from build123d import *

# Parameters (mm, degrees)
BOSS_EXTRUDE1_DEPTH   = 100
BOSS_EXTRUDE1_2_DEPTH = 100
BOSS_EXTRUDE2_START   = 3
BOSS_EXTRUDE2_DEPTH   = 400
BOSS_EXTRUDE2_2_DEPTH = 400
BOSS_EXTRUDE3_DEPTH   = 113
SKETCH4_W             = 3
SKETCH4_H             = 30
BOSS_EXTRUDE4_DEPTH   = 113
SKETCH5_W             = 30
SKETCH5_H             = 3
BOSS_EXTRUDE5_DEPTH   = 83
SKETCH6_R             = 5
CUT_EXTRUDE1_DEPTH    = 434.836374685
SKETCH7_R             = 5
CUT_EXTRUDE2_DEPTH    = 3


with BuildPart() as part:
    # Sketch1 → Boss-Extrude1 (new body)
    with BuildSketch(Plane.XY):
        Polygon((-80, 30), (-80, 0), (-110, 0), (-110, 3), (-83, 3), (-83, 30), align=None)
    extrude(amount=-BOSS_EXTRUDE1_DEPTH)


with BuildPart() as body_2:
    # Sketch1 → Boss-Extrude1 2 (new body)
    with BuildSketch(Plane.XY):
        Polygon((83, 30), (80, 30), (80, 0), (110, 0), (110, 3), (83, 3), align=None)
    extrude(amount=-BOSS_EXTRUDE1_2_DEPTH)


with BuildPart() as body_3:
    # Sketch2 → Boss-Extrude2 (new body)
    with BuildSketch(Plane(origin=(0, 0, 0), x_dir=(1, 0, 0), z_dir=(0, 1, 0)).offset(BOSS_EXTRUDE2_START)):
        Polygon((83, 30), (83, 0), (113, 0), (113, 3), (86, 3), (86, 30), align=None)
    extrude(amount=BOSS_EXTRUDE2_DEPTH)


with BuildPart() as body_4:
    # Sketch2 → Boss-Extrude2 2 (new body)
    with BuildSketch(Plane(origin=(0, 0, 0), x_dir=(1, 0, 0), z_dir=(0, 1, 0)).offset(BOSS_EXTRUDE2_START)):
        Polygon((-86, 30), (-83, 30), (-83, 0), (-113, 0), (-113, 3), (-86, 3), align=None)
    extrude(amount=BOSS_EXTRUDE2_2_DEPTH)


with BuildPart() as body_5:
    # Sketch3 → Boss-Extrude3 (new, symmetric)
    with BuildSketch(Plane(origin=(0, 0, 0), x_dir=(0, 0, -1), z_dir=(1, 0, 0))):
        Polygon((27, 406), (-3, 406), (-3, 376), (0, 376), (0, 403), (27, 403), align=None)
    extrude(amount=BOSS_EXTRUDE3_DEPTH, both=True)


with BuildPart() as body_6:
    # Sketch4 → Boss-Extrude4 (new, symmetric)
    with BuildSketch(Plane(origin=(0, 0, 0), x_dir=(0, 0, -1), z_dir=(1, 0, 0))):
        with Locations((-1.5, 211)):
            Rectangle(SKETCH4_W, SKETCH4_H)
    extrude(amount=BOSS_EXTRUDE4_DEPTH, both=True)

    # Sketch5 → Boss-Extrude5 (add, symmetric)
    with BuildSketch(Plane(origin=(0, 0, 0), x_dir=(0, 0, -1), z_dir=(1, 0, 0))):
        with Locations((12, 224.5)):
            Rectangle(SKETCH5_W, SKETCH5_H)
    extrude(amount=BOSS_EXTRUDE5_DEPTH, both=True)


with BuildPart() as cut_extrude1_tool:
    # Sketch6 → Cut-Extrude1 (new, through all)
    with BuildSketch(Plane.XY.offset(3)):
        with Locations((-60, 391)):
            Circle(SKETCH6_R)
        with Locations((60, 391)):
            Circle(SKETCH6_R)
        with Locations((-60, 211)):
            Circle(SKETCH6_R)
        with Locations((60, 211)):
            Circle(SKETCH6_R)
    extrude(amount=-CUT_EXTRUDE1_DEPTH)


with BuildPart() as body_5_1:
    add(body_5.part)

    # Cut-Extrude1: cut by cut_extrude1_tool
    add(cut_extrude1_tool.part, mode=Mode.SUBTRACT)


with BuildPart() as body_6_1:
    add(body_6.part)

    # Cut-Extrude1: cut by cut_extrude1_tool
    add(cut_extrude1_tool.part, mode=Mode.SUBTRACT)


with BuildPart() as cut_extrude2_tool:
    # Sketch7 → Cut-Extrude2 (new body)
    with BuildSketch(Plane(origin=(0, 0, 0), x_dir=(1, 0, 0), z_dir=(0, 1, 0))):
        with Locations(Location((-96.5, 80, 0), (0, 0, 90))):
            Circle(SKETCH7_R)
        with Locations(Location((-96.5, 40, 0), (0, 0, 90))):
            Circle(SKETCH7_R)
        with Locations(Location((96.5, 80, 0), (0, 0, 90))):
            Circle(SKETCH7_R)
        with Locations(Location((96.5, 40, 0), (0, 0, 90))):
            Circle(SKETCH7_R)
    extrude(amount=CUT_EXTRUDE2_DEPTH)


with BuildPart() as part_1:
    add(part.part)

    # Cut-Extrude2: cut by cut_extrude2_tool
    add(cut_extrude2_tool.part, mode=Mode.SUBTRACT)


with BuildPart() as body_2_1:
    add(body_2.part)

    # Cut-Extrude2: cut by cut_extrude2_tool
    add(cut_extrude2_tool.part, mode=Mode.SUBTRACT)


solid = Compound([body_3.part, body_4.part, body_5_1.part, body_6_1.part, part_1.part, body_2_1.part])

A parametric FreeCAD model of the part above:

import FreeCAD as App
import Part
import Sketcher

V = App.Vector
Q = App.Units.Quantity


def add_polygon(sketch, points):
    """Adds a closed chain of lines whose ends are joined by coincident constraints."""
    first, n = sketch.GeometryCount, len(points)
    for a, b in zip(points, points[1:] + points[:1]):
        sketch.addGeometry(Part.LineSegment(App.Vector(*a, 0), App.Vector(*b, 0)), False)
    for i in range(n):
        sketch.addConstraint(Sketcher.Constraint("Coincident", first + i, 2, first + (i + 1) % n, 1))

doc = App.newDocument("Part")
params = doc.addObject("Spreadsheet::Sheet", "Params")
for row, (alias, value) in enumerate([
    ("sketch1_width", "3 mm"),
    ("sketch1_width2", "27 mm"),
    ("pad1_length", "100 mm"),
    ("sketch2_width", "3 mm"),
    ("sketch2_width2", "30 mm"),
    ("pad2_length", "100 mm"),
    ("sketch3_width", "30 mm"),
    ("sketch3_width2", "27 mm"),
    ("pad3_length", "400 mm"),
    ("sketch4_width", "3 mm"),
    ("sketch4_width2", "27 mm"),
    ("pad4_length", "400 mm"),
    ("sketch5_width", "30 mm"),
    ("sketch5_width2", "27 mm"),
    ("pad5_length", "226 mm"),
    ("sketch6_width", "30 mm"),
    ("sketch6_height", "3 mm"),
    ("pad6_length", "226 mm"),
    ("sketch7_width", "3 mm"),
    ("sketch7_height", "30 mm"),
    ("pad7_length", "166 mm"),
    ("sketch8_diameter", "10 mm"),
    ("pad8_length", "434.836375 mm"),
    ("sketch9_diameter", "10 mm"),
    ("pad9_length", "3 mm"),
], start=1):
    params.set(f"A{row}", alias)
    params.set(f"B{row}", "=" + value)
    params.setAlias(f"B{row}", alias)

body = doc.addObject("PartDesign::Body", "Body")

# Sketch on XY plane
sketch1 = doc.addObject("Sketcher::SketchObject", "Sketch")
body.addObject(sketch1)
sketch1.AttachmentSupport = (doc.XY_Plane, [""])
sketch1.MapMode = "FlatFace"
add_polygon(sketch1, [(-80, 0), (-80, 30), (-83, 30), (-83, 3), (-110, 3), (-110, 0)])  # lines 0-5
sketch1.addConstraint(Sketcher.Constraint("Vertical", 0))
sketch1.addConstraint(Sketcher.Constraint("Horizontal", 1))
sketch1.addConstraint(Sketcher.Constraint("Vertical", 2))
sketch1.addConstraint(Sketcher.Constraint("Horizontal", 3))
sketch1.addConstraint(Sketcher.Constraint("Vertical", 4))
sketch1.addConstraint(Sketcher.Constraint("Horizontal", 5))
sketch1.addConstraint(Sketcher.Constraint("PointOnObject", 4, 2, -1))
sketch1.addConstraint(Sketcher.Constraint("Equal", 5, 0))
sketch1.addConstraint(Sketcher.Constraint("Equal", 3, 2))
sketch1.addConstraint(Sketcher.Constraint("DistanceX", 1, 2, 1, 1, Q("3 mm")))
sketch1.addConstraint(Sketcher.Constraint("DistanceX", 3, 2, 3, 1, Q("27 mm")))
sketch1.addConstraint(Sketcher.Constraint("DistanceX", 0, 2, -1, 1, Q("80 mm")))
sketch1.setExpression("Constraints[15]", "Params.sketch1_width")
sketch1.setExpression("Constraints[16]", "Params.sketch1_width2")
pad1 = doc.addObject("PartDesign::Pad", "Pad")
body.addObject(pad1)
pad1.Profile = sketch1
pad1.setExpression("Length", "Params.pad1_length")
pad1.Reversed = True
body2 = doc.addObject("PartDesign::Body", "Body001")

# Sketch on XY plane
sketch2 = doc.addObject("Sketcher::SketchObject", "Sketch001")
body2.addObject(sketch2)
sketch2.AttachmentSupport = (doc.getObject("XY_Plane001"), [""])
sketch2.MapMode = "FlatFace"
add_polygon(sketch2, [(83, 30), (80, 30), (80, 0), (110, 0), (110, 3), (83, 3)])  # lines 0-5
sketch2.addConstraint(Sketcher.Constraint("Horizontal", 0))
sketch2.addConstraint(Sketcher.Constraint("Vertical", 1))
sketch2.addConstraint(Sketcher.Constraint("Horizontal", 2))
sketch2.addConstraint(Sketcher.Constraint("Vertical", 3))
sketch2.addConstraint(Sketcher.Constraint("Horizontal", 4))
sketch2.addConstraint(Sketcher.Constraint("Vertical", 5))
sketch2.addConstraint(Sketcher.Constraint("PointOnObject", 1, 2, -1))
sketch2.addConstraint(Sketcher.Constraint("Equal", 2, 1))
sketch2.addConstraint(Sketcher.Constraint("Equal", 0, 3))
sketch2.addConstraint(Sketcher.Constraint("DistanceX", 0, 2, 0, 1, Q("3 mm")))
sketch2.addConstraint(Sketcher.Constraint("DistanceX", 2, 1, 2, 2, Q("30 mm")))
sketch2.addConstraint(Sketcher.Constraint("DistanceX", -1, 1, 0, 2, Q("80 mm")))
sketch2.setExpression("Constraints[15]", "Params.sketch2_width")
sketch2.setExpression("Constraints[16]", "Params.sketch2_width2")
pad2 = doc.addObject("PartDesign::Pad", "Pad001")
body2.addObject(pad2)
pad2.Profile = sketch2
pad2.setExpression("Length", "Params.pad2_length")
pad2.Reversed = True
body3 = doc.addObject("PartDesign::Body", "Body002")

# Sketch on XZ plane
sketch3 = doc.addObject("Sketcher::SketchObject", "Sketch002")
body3.addObject(sketch3)
sketch3.AttachmentSupport = (doc.getObject("XZ_Plane002"), [""])
sketch3.MapMode = "FlatFace"
sketch3.AttachmentOffset = App.Placement(V(0, 0, -3), App.Rotation())
add_polygon(sketch3, [(83, -30), (83, 0), (113, 0), (113, -3), (86, -3), (86, -30)])  # lines 0-5
sketch3.addConstraint(Sketcher.Constraint("Vertical", 0))
sketch3.addConstraint(Sketcher.Constraint("Horizontal", 1))
sketch3.addConstraint(Sketcher.Constraint("Vertical", 2))
sketch3.addConstraint(Sketcher.Constraint("Horizontal", 3))
sketch3.addConstraint(Sketcher.Constraint("Vertical", 4))
sketch3.addConstraint(Sketcher.Constraint("Horizontal", 5))
sketch3.addConstraint(Sketcher.Constraint("PointOnObject", 0, 2, -1))
sketch3.addConstraint(Sketcher.Constraint("Equal", 1, 0))
sketch3.addConstraint(Sketcher.Constraint("Equal", 5, 2))
sketch3.addConstraint(Sketcher.Constraint("DistanceX", 1, 1, 1, 2, Q("30 mm")))
sketch3.addConstraint(Sketcher.Constraint("DistanceX", 3, 2, 3, 1, Q("27 mm")))
sketch3.addConstraint(Sketcher.Constraint("DistanceX", -1, 1, 0, 2, Q("83 mm")))
sketch3.setExpression("Constraints[15]", "Params.sketch3_width")
sketch3.setExpression("Constraints[16]", "Params.sketch3_width2")
pad3 = doc.addObject("PartDesign::Pad", "Pad002")
body3.addObject(pad3)
pad3.Profile = sketch3
pad3.setExpression("Length", "Params.pad3_length")
pad3.Reversed = True
body4 = doc.addObject("PartDesign::Body", "Body003")

# Sketch on XZ plane
sketch4 = doc.addObject("Sketcher::SketchObject", "Sketch003")
body4.addObject(sketch4)
sketch4.AttachmentSupport = (doc.getObject("XZ_Plane003"), [""])
sketch4.MapMode = "FlatFace"
sketch4.AttachmentOffset = App.Placement(V(0, 0, -3), App.Rotation())
add_polygon(sketch4, [(-83, -30), (-86, -30), (-86, -3), (-113, -3), (-113, 0), (-83, 0)])  # lines 0-5
sketch4.addConstraint(Sketcher.Constraint("Horizontal", 0))
sketch4.addConstraint(Sketcher.Constraint("Vertical", 1))
sketch4.addConstraint(Sketcher.Constraint("Horizontal", 2))
sketch4.addConstraint(Sketcher.Constraint("Vertical", 3))
sketch4.addConstraint(Sketcher.Constraint("Horizontal", 4))
sketch4.addConstraint(Sketcher.Constraint("Vertical", 5))
sketch4.addConstraint(Sketcher.Constraint("PointOnObject", 3, 2, -1))
sketch4.addConstraint(Sketcher.Constraint("Equal", 2, 1))
sketch4.addConstraint(Sketcher.Constraint("Equal", 0, 3))
sketch4.addConstraint(Sketcher.Constraint("DistanceX", 0, 2, 0, 1, Q("3 mm")))
sketch4.addConstraint(Sketcher.Constraint("DistanceX", 2, 2, 2, 1, Q("27 mm")))
sketch4.addConstraint(Sketcher.Constraint("DistanceX", 0, 2, -1, 1, Q("86 mm")))
sketch4.setExpression("Constraints[15]", "Params.sketch4_width")
sketch4.setExpression("Constraints[16]", "Params.sketch4_width2")
pad4 = doc.addObject("PartDesign::Pad", "Pad003")
body4.addObject(pad4)
pad4.Profile = sketch4
pad4.setExpression("Length", "Params.pad4_length")
pad4.Reversed = True
body5 = doc.addObject("PartDesign::Body", "Body004")

# Sketch on YZ plane
sketch5 = doc.addObject("Sketcher::SketchObject", "Sketch004")
body5.addObject(sketch5)
sketch5.AttachmentSupport = (doc.getObject("YZ_Plane004"), [""])
sketch5.MapMode = "FlatFace"
add_polygon(sketch5, [(406, -27), (406, 3), (376, 3), (376, 0), (403, 0), (403, -27)])  # lines 0-5
sketch5.addConstraint(Sketcher.Constraint("Vertical", 0))
sketch5.addConstraint(Sketcher.Constraint("Horizontal", 1))
sketch5.addConstraint(Sketcher.Constraint("Vertical", 2))
sketch5.addConstraint(Sketcher.Constraint("Horizontal", 3))
sketch5.addConstraint(Sketcher.Constraint("Vertical", 4))
sketch5.addConstraint(Sketcher.Constraint("Horizontal", 5))
sketch5.addConstraint(Sketcher.Constraint("PointOnObject", 2, 2, -1))
sketch5.addConstraint(Sketcher.Constraint("Equal", 1, 0))
sketch5.addConstraint(Sketcher.Constraint("Equal", 5, 2))
sketch5.addConstraint(Sketcher.Constraint("DistanceX", 1, 2, 1, 1, Q("30 mm")))
sketch5.addConstraint(Sketcher.Constraint("DistanceX", 3, 1, 3, 2, Q("27 mm")))
sketch5.addConstraint(Sketcher.Constraint("DistanceX", -1, 1, 0, 2, Q("406 mm")))
sketch5.setExpression("Constraints[15]", "Params.sketch5_width")
sketch5.setExpression("Constraints[16]", "Params.sketch5_width2")
pad5 = doc.addObject("PartDesign::Pad", "Pad004")
body5.addObject(pad5)
pad5.Profile = sketch5
pad5.setExpression("Length", "Params.pad5_length")
pad5.Midplane = True
body6 = doc.addObject("PartDesign::Body", "Body005")

# Sketch on YZ plane
sketch6 = doc.addObject("Sketcher::SketchObject", "Sketch005")
body6.addObject(sketch6)
sketch6.AttachmentSupport = (doc.getObject("YZ_Plane005"), [""])
sketch6.MapMode = "FlatFace"
add_polygon(sketch6, [(226, 3), (196, 3), (196, 0), (226, 0)])  # lines 0-3
sketch6.addConstraint(Sketcher.Constraint("Horizontal", 0))
sketch6.addConstraint(Sketcher.Constraint("Vertical", 1))
sketch6.addConstraint(Sketcher.Constraint("Horizontal", 2))
sketch6.addConstraint(Sketcher.Constraint("Vertical", 3))
sketch6.addConstraint(Sketcher.Constraint("PointOnObject", 1, 2, -1))
sketch6.addConstraint(Sketcher.Constraint("DistanceX", 0, 2, 0, 1, Q("30 mm")))
sketch6.addConstraint(Sketcher.Constraint("DistanceY", 1, 2, 1, 1, Q("3 mm")))
sketch6.addConstraint(Sketcher.Constraint("DistanceX", -1, 1, 0, 2, Q("196 mm")))
sketch6.setExpression("Constraints[9]", "Params.sketch6_width")
sketch6.setExpression("Constraints[10]", "Params.sketch6_height")
pad6 = doc.addObject("PartDesign::Pad", "Pad005")
body6.addObject(pad6)
pad6.Profile = sketch6
pad6.setExpression("Length", "Params.pad6_length")
pad6.Midplane = True

# Sketch on YZ plane
sketch7 = doc.addObject("Sketcher::SketchObject", "Sketch006")
body6.addObject(sketch7)
sketch7.AttachmentSupport = (doc.getObject("YZ_Plane005"), [""])
sketch7.MapMode = "FlatFace"
add_polygon(sketch7, [(226, 3), (223, 3), (223, -27), (226, -27)])  # lines 0-3
sketch7.addConstraint(Sketcher.Constraint("Horizontal", 0))
sketch7.addConstraint(Sketcher.Constraint("Vertical", 1))
sketch7.addConstraint(Sketcher.Constraint("Horizontal", 2))
sketch7.addConstraint(Sketcher.Constraint("Vertical", 3))
sketch7.addConstraint(Sketcher.Constraint("DistanceX", 0, 2, 0, 1, Q("3 mm")))
sketch7.addConstraint(Sketcher.Constraint("DistanceY", 1, 2, 1, 1, Q("30 mm")))
sketch7.addConstraint(Sketcher.Constraint("DistanceX", -1, 1, 0, 2, Q("223 mm")))
sketch7.addConstraint(Sketcher.Constraint("DistanceY", -1, 1, 0, 2, Q("3 mm")))
sketch7.setExpression("Constraints[8]", "Params.sketch7_width")
sketch7.setExpression("Constraints[9]", "Params.sketch7_height")
pad7 = doc.addObject("PartDesign::Pad", "Pad006")
body6.addObject(pad7)
pad7.Profile = sketch7
pad7.setExpression("Length", "Params.pad7_length")
pad7.Midplane = True
body7 = doc.addObject("PartDesign::Body", "Body006")
body7.AllowCompound = True

# Sketch on XY plane
sketch8 = doc.addObject("Sketcher::SketchObject", "Sketch007")
body7.addObject(sketch8)
sketch8.AttachmentSupport = (doc.getObject("XY_Plane006"), [""])
sketch8.MapMode = "FlatFace"
sketch8.AttachmentOffset = App.Placement(V(0, 0, 3), App.Rotation())
sketch8.addGeometry(Part.Circle(V(-60, 391, 0), V(0, 0, 1), 5), False)
sketch8.addGeometry(Part.Circle(V(60, 391, 0), V(0, 0, 1), 5), False)
sketch8.addGeometry(Part.Circle(V(-60, 211, 0), V(0, 0, 1), 5), False)
sketch8.addGeometry(Part.Circle(V(60, 211, 0), V(0, 0, 1), 5), False)
sketch8.addConstraint(Sketcher.Constraint("Equal", 0, 1))
sketch8.addConstraint(Sketcher.Constraint("Equal", 1, 2))
sketch8.addConstraint(Sketcher.Constraint("Equal", 2, 3))
sketch8.addConstraint(Sketcher.Constraint("Symmetric", 0, 3, 1, 3, -2))
sketch8.addConstraint(Sketcher.Constraint("Symmetric", 2, 3, 3, 3, -2))
sketch8.addConstraint(Sketcher.Constraint("Vertical", 0, 3, 2, 3))
sketch8.addConstraint(Sketcher.Constraint("Diameter", 0, Q("10 mm")))
sketch8.addConstraint(Sketcher.Constraint("DistanceX", 0, 3, -1, 1, Q("60 mm")))
sketch8.addConstraint(Sketcher.Constraint("DistanceY", -1, 1, 0, 3, Q("391 mm")))
sketch8.addConstraint(Sketcher.Constraint("DistanceY", -1, 1, 2, 3, Q("211 mm")))
sketch8.setExpression("Constraints[6]", "Params.sketch8_diameter")
pad8 = doc.addObject("PartDesign::Pad", "Pad007")
body7.addObject(pad8)
pad8.Profile = sketch8
pad8.setExpression("Length", "Params.pad8_length")
pad8.Reversed = True
doc.recompute()

body8 = doc.addObject("PartDesign::Body", "Body007")
body8.BaseFeature = body7
boolean = doc.addObject("PartDesign::Boolean", "Boolean")
body5.addObject(boolean)
boolean.Type = "Cut"
boolean.addObjects([body8])
doc.recompute()

boolean2 = doc.addObject("PartDesign::Boolean", "Boolean001")
body6.addObject(boolean2)
boolean2.Type = "Cut"
boolean2.addObjects([body7])
body9 = doc.addObject("PartDesign::Body", "Body008")
body9.AllowCompound = True

# Sketch on XZ plane
sketch9 = doc.addObject("Sketcher::SketchObject", "Sketch008")
body9.addObject(sketch9)
sketch9.AttachmentSupport = (doc.getObject("XZ_Plane008"), [""])
sketch9.MapMode = "FlatFace"
sketch9.addGeometry(Part.Circle(V(-96, -80, 0), V(0, 0, 1), 5), False)
sketch9.addGeometry(Part.Circle(V(-96, -40, 0), V(0, 0, 1), 5), False)
sketch9.addGeometry(Part.Circle(V(96, -80, 0), V(0, 0, 1), 5), False)
sketch9.addGeometry(Part.Circle(V(96, -40, 0), V(0, 0, 1), 5), False)
sketch9.addConstraint(Sketcher.Constraint("Equal", 0, 1))
sketch9.addConstraint(Sketcher.Constraint("Equal", 1, 2))
sketch9.addConstraint(Sketcher.Constraint("Equal", 2, 3))
sketch9.addConstraint(Sketcher.Constraint("Symmetric", 0, 3, 2, 3, -2))
sketch9.addConstraint(Sketcher.Constraint("Symmetric", 1, 3, 3, 3, -2))
sketch9.addConstraint(Sketcher.Constraint("Vertical", 0, 3, 1, 3))
sketch9.addConstraint(Sketcher.Constraint("Diameter", 0, Q("10 mm")))
sketch9.addConstraint(Sketcher.Constraint("DistanceY", 0, 3, -1, 1, Q("80 mm")))
sketch9.addConstraint(Sketcher.Constraint("DistanceY", 1, 3, -1, 1, Q("40 mm")))
sketch9.addConstraint(Sketcher.Constraint("DistanceX", 0, 3, 2, 3, Q("193 mm")))
sketch9.setExpression("Constraints[6]", "Params.sketch9_diameter")
pad9 = doc.addObject("PartDesign::Pad", "Pad008")
body9.addObject(pad9)
pad9.Profile = sketch9
pad9.setExpression("Length", "Params.pad9_length")
pad9.Reversed = True
doc.recompute()

body10 = doc.addObject("PartDesign::Body", "Body009")
body10.BaseFeature = body9
boolean3 = doc.addObject("PartDesign::Boolean", "Boolean002")
body.addObject(boolean3)
boolean3.Type = "Cut"
boolean3.addObjects([body10])
doc.recompute()

boolean4 = doc.addObject("PartDesign::Boolean", "Boolean003")
body2.addObject(boolean4)
boolean4.Type = "Cut"
boolean4.addObjects([body9])

doc.recompute()
